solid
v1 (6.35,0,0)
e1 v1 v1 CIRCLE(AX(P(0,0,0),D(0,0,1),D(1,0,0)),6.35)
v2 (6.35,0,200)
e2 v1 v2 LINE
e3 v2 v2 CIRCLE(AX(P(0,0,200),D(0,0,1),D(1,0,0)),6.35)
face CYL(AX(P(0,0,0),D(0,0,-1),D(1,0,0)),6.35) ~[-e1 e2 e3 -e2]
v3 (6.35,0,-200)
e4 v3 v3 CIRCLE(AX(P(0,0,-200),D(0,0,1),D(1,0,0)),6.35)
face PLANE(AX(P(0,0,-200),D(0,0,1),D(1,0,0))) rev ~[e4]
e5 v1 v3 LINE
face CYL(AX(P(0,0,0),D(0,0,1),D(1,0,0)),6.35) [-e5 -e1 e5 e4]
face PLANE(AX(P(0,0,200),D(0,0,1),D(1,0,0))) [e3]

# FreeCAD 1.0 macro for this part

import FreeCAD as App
import Part
import Sketcher

doc = App.newDocument("Part")
body = doc.addObject("PartDesign::Body", "Body")

sketch1 = body.newObject("Sketcher::SketchObject", "Sketch")
sketch1.AttachmentSupport = (doc.getObject("XY_Plane"), [""])
sketch1.MapMode = "FlatFace"
sketch1.addGeometry(Part.Circle(App.Vector(0, 0, 0), App.Vector(0, 0, 1), 6), False)
sketch1.addConstraint([
    Sketcher.Constraint("Coincident", 0, 3, -1, 1),
    Sketcher.Constraint("Diameter", 0, 12.7),
])
pad1 = body.newObject("PartDesign::Pad", "Pad")
pad1.Profile = sketch1
pad1.Length = 400
pad1.Midplane = True

doc.recompute()
